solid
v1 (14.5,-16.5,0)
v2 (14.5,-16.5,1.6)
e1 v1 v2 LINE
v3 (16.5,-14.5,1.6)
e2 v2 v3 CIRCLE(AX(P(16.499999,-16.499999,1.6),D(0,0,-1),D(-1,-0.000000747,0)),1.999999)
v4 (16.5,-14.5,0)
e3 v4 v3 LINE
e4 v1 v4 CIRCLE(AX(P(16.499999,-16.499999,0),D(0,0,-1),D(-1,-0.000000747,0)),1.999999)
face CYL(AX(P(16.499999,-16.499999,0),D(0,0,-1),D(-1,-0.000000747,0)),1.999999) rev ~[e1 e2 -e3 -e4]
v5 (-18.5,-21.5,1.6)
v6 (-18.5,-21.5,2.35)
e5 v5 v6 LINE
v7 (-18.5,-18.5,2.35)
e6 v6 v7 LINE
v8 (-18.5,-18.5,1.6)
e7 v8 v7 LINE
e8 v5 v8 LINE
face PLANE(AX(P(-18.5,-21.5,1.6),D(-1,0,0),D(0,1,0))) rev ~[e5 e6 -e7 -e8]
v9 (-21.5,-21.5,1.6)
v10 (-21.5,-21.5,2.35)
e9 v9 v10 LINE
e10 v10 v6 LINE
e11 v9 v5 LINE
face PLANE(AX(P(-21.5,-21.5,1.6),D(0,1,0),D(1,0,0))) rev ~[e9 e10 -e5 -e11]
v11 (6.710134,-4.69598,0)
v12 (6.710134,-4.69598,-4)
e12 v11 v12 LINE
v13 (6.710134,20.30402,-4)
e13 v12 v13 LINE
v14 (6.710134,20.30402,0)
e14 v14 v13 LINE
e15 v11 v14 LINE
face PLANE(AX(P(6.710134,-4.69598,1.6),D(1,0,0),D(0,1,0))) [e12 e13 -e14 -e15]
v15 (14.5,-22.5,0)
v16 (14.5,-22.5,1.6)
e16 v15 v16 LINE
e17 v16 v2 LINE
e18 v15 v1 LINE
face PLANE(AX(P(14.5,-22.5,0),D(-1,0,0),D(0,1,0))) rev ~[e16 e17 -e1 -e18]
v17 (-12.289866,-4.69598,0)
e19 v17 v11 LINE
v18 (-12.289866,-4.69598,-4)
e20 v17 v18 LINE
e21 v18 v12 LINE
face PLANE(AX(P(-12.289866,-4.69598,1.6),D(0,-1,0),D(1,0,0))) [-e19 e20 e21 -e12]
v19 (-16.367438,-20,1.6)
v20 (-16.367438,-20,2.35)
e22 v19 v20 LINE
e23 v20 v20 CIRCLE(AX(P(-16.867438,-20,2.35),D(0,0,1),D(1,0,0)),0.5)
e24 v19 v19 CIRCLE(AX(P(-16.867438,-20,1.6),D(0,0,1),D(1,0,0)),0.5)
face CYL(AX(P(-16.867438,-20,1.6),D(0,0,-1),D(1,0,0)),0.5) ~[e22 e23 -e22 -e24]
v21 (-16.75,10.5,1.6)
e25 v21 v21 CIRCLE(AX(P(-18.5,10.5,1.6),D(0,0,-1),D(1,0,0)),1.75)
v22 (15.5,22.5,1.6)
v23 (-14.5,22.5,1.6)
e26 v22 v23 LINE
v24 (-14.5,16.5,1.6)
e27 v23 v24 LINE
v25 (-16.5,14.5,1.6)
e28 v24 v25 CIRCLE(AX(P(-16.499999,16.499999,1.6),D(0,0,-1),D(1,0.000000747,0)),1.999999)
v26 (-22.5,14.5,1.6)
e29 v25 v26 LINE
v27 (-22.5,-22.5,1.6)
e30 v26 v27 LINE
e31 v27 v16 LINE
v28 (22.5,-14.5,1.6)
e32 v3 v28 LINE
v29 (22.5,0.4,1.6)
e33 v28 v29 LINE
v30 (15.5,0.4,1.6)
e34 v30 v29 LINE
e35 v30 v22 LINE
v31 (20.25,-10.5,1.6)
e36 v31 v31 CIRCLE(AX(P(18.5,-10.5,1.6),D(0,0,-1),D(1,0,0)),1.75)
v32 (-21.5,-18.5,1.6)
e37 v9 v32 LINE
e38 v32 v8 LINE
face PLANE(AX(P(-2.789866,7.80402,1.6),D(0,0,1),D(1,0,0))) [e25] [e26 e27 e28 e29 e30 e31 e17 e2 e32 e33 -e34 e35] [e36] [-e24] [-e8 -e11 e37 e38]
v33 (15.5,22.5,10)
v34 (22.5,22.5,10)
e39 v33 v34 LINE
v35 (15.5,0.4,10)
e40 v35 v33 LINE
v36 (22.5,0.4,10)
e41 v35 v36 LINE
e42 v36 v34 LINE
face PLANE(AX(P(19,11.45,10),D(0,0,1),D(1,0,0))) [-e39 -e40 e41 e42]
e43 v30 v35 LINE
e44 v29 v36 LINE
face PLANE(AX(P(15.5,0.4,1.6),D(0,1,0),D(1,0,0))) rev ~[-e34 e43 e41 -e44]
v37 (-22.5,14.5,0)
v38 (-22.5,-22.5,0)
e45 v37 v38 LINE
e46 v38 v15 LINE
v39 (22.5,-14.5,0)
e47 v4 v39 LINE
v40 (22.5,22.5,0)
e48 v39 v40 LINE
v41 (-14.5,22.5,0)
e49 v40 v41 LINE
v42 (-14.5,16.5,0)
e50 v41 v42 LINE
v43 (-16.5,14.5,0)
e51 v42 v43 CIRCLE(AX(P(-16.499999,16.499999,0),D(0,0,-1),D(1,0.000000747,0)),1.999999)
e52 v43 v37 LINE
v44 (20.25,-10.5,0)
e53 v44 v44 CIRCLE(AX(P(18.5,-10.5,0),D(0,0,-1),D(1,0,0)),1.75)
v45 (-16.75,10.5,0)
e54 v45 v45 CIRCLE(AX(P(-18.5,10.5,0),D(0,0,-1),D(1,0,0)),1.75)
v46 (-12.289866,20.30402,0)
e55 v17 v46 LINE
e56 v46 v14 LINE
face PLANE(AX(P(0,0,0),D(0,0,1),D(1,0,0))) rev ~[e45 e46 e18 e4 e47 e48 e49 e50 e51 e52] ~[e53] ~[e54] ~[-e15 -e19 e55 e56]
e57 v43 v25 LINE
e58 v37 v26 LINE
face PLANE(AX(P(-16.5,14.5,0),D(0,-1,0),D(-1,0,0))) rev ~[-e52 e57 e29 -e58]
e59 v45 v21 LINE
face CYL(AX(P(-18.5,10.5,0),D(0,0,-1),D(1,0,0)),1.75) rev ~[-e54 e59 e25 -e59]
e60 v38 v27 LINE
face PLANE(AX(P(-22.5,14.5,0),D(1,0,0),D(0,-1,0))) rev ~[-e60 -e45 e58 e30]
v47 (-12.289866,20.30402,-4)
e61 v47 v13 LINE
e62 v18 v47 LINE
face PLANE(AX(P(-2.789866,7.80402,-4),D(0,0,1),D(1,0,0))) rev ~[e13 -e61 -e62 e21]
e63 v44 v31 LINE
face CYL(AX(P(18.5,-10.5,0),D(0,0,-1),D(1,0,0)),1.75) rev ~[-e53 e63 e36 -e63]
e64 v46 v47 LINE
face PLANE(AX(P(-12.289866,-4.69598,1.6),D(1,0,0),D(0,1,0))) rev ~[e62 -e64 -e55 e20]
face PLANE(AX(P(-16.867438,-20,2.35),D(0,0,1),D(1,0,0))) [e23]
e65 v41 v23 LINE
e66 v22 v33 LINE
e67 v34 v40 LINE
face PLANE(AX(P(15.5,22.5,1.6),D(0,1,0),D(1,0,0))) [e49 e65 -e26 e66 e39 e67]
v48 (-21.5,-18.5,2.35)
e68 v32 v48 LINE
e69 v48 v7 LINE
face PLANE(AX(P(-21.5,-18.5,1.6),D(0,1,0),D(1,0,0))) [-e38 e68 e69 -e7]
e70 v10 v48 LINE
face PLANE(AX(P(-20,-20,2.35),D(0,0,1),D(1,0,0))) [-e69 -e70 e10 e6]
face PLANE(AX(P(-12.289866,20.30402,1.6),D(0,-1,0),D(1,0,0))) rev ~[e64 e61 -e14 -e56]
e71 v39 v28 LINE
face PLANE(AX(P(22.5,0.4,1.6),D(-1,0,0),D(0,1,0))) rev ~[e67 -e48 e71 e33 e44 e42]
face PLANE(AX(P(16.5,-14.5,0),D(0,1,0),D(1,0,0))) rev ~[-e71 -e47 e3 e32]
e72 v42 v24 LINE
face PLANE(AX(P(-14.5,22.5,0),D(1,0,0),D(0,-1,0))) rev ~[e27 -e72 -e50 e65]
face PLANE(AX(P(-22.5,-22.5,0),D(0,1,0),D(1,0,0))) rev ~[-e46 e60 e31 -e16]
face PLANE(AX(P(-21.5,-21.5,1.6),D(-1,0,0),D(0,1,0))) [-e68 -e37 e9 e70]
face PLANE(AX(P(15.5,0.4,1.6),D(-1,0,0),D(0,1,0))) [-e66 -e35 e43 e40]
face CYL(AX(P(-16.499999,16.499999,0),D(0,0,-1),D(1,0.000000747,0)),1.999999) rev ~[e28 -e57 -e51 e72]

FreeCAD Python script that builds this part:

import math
import FreeCAD as App
import Part
import Sketcher

V = App.Vector


def add_polygon(sketch, points):
    """Adds a closed chain of lines whose ends are joined by coincident constraints."""
    first, n = sketch.GeometryCount, len(points)
    for a, b in zip(points, points[1:] + points[:1]):
        sketch.addGeometry(Part.LineSegment(App.Vector(*a, 0), App.Vector(*b, 0)), False)
    for i in range(n):
        sketch.addConstraint(Sketcher.Constraint("Coincident", first + i, 2, first + (i + 1) % n, 1))

doc = App.newDocument("Part")
body = doc.addObject("PartDesign::Body", "Body")

# Sketch on XY plane
sketch1 = doc.addObject("Sketcher::SketchObject", "Sketch")
body.addObject(sketch1)
sketch1.AttachmentSupport = (doc.XY_Plane, [""])
sketch1.MapMode = "FlatFace"
sketch1.addGeometry([
    Part.LineSegment(V(-22.5, -22.5, 0), V(14.5, -22.5, 0)),  # 0
    Part.LineSegment(V(14.5, -22.5, 0), V(14.5, -16.5, 0)),  # 1
    Part.ArcOfCircle(Part.Circle(V(16.5, -16.5, 0), V(0, 0, 1), 2), math.radians(90), math.radians(180)),  # 2
    Part.LineSegment(V(16.5, -14.5, 0), V(22.5, -14.5, 0)),  # 3
    Part.LineSegment(V(22.5, -14.5, 0), V(22.5, 22.5, 0)),  # 4
    Part.LineSegment(V(22.5, 22.5, 0), V(-14.5, 22.5, 0)),  # 5
    Part.LineSegment(V(-14.5, 22.5, 0), V(-14.5, 16.5, 0)),  # 6
    Part.ArcOfCircle(Part.Circle(V(-16.5, 16.5, 0), V(0, 0, 1), 2), math.radians(-90), math.radians(0)),  # 7
    Part.LineSegment(V(-16.5, 14.5, 0), V(-22.5, 14.5, 0)),  # 8
    Part.LineSegment(V(-22.5, 14.5, 0), V(-22.5, -22.5, 0)),  # 9
], False)
sketch1.addConstraint([
    Sketcher.Constraint("Coincident", 0, 2, 1, 1),
    Sketcher.Constraint("Tangent", 1, 2, 2, 2),
    Sketcher.Constraint("Tangent", 2, 1, 3, 1),
    Sketcher.Constraint("Coincident", 3, 2, 4, 1),
    Sketcher.Constraint("Coincident", 4, 2, 5, 1),
    Sketcher.Constraint("Coincident", 5, 2, 6, 1),
    Sketcher.Constraint("Tangent", 6, 2, 7, 2),
    Sketcher.Constraint("Tangent", 7, 1, 8, 1),
    Sketcher.Constraint("Coincident", 8, 2, 9, 1),
    Sketcher.Constraint("Coincident", 9, 2, 0, 1),
    Sketcher.Constraint("Horizontal", 0),
    Sketcher.Constraint("Vertical", 1),
    Sketcher.Constraint("Horizontal", 3),
    Sketcher.Constraint("Vertical", 4),
    Sketcher.Constraint("Horizontal", 5),
    Sketcher.Constraint("Vertical", 6),
    Sketcher.Constraint("Horizontal", 8),
    Sketcher.Constraint("Vertical", 9),
    Sketcher.Constraint("Equal", 2, 7),
    Sketcher.Constraint("Symmetric", 2, 3, 7, 3, -1, 1),
    Sketcher.Constraint("Symmetric", 4, 2, 9, 2, -1, 1),
    Sketcher.Constraint("Equal", 8, 1),
    Sketcher.Constraint("Equal", 5, 4),
    Sketcher.Constraint("Radius", 2, 1.999999),
    Sketcher.Constraint("DistanceX", 0, 1, 0, 2, 37.0),
    Sketcher.Constraint("DistanceX", 3, 1, 3, 2, 6.0),
])
pad1 = doc.addObject("PartDesign::Pad", "Pad")
body.addObject(pad1)
pad1.Profile = sketch1
pad1.Length = 1.6

# Sketch on XY plane
sketch2 = doc.addObject("Sketcher::SketchObject", "Sketch001")
body.addObject(sketch2)
sketch2.AttachmentSupport = (doc.XY_Plane, [""])
sketch2.MapMode = "FlatFace"
sketch2.AttachmentOffset = App.Placement(V(0, 0, 1.6), App.Rotation())
add_polygon(sketch2, [(-12, 20), (-12, -5), (7, -5), (7, 20)])  # lines 0-3
sketch2.addConstraint([
    Sketcher.Constraint("Vertical", 0),
    Sketcher.Constraint("Horizontal", 1),
    Sketcher.Constraint("Vertical", 2),
    Sketcher.Constraint("Horizontal", 3),
    Sketcher.Constraint("DistanceX", 1, 1, 1, 2, 19.0),
    Sketcher.Constraint("DistanceY", 0, 2, 0, 1, 25.0),
    Sketcher.Constraint("DistanceY", 0, 2, -1, 1, 4.69598),
    Sketcher.Constraint("DistanceX", 0, 2, -1, 1, 12.289866),
])
pad2 = doc.addObject("PartDesign::Pad", "Pad001")
body.addObject(pad2)
pad2.Profile = sketch2
pad2.Length = 5.6
pad2.Reversed = True

# Sketch on XY plane
sketch3 = doc.addObject("Sketcher::SketchObject", "Sketch002")
body.addObject(sketch3)
sketch3.AttachmentSupport = (doc.XY_Plane, [""])
sketch3.MapMode = "FlatFace"
sketch3.AttachmentOffset = App.Placement(V(0, 0, 1.6), App.Rotation())
add_polygon(sketch3, [(16, 22), (16, 0), (22, 0), (22, 22)])  # lines 0-3
sketch3.addConstraint([
    Sketcher.Constraint("Vertical", 0),
    Sketcher.Constraint("Horizontal", 1),
    Sketcher.Constraint("Vertical", 2),
    Sketcher.Constraint("Horizontal", 3),
    Sketcher.Constraint("DistanceX", 1, 1, 1, 2, 7.0),
    Sketcher.Constraint("DistanceY", 0, 2, 0, 1, 22.1),
    Sketcher.Constraint("DistanceX", -1, 1, 0, 2, 15.5),
    Sketcher.Constraint("DistanceY", -1, 1, 0, 2, 0.4),
])
pad3 = doc.addObject("PartDesign::Pad", "Pad002")
body.addObject(pad3)
pad3.Profile = sketch3
pad3.Length = 8.4

# Sketch on XY plane
sketch4 = doc.addObject("Sketcher::SketchObject", "Sketch003")
body.addObject(sketch4)
sketch4.AttachmentSupport = (doc.XY_Plane, [""])
sketch4.MapMode = "FlatFace"
sketch4.AttachmentOffset = App.Placement(V(0, 0, 1.6), App.Rotation())
add_polygon(sketch4, [(-21.5, -18.5), (-21.5, -21.5), (-18.5, -21.5), (-18.5, -18.5)])  # lines 0-3
sketch4.addGeometry(Part.Circle(V(-16.9, -20, 0), V(0, 0, 1), 0.5), False)  # 4
sketch4.addConstraint([
    Sketcher.Constraint("Vertical", 0),
    Sketcher.Constraint("Horizontal", 1),
    Sketcher.Constraint("Vertical", 2),
    Sketcher.Constraint("Horizontal", 3),
    Sketcher.Constraint("Equal", 3, 0),
    Sketcher.Constraint("Diameter", 4, 1.0),
    Sketcher.Constraint("DistanceX", 1, 1, 1, 2, 3.0),
    Sketcher.Constraint("DistanceY", 4, 3, -1, 1, 20.0),
    Sketcher.Constraint("DistanceX", 0, 2, -1, 1, 21.5),
    Sketcher.Constraint("DistanceY", 0, 2, -1, 1, 21.5),
    Sketcher.Constraint("DistanceX", 4, 3, -1, 1, 16.867438),
])
pad4 = doc.addObject("PartDesign::Pad", "Pad003")
body.addObject(pad4)
pad4.Profile = sketch4
pad4.Length = 0.75

# Sketch on XY plane
sketch5 = doc.addObject("Sketcher::SketchObject", "Sketch004")
body.addObject(sketch5)
sketch5.AttachmentSupport = (doc.XY_Plane, [""])
sketch5.MapMode = "FlatFace"
sketch5.addGeometry([
    Part.Circle(V(-18.5, 10.5, 0), V(0, 0, 1), 1.8),
    Part.Circle(V(18.5, -10.5, 0), V(0, 0, 1), 1.8),
], False)
sketch5.addConstraint([
    Sketcher.Constraint("Equal", 0, 1),
    Sketcher.Constraint("Symmetric", 0, 3, 1, 3, -1, 1),
    Sketcher.Constraint("Diameter", 0, 3.5),
    Sketcher.Constraint("DistanceX", 0, 3, 1, 3, 37.0),
    Sketcher.Constraint("DistanceY", 1, 3, 0, 3, 21.0),
])
pocket1 = doc.addObject("PartDesign::Pocket", "Pocket")
body.addObject(pocket1)
pocket1.Profile = sketch5
pocket1.Length = 2
pocket1.Reversed = True

doc.recompute()
